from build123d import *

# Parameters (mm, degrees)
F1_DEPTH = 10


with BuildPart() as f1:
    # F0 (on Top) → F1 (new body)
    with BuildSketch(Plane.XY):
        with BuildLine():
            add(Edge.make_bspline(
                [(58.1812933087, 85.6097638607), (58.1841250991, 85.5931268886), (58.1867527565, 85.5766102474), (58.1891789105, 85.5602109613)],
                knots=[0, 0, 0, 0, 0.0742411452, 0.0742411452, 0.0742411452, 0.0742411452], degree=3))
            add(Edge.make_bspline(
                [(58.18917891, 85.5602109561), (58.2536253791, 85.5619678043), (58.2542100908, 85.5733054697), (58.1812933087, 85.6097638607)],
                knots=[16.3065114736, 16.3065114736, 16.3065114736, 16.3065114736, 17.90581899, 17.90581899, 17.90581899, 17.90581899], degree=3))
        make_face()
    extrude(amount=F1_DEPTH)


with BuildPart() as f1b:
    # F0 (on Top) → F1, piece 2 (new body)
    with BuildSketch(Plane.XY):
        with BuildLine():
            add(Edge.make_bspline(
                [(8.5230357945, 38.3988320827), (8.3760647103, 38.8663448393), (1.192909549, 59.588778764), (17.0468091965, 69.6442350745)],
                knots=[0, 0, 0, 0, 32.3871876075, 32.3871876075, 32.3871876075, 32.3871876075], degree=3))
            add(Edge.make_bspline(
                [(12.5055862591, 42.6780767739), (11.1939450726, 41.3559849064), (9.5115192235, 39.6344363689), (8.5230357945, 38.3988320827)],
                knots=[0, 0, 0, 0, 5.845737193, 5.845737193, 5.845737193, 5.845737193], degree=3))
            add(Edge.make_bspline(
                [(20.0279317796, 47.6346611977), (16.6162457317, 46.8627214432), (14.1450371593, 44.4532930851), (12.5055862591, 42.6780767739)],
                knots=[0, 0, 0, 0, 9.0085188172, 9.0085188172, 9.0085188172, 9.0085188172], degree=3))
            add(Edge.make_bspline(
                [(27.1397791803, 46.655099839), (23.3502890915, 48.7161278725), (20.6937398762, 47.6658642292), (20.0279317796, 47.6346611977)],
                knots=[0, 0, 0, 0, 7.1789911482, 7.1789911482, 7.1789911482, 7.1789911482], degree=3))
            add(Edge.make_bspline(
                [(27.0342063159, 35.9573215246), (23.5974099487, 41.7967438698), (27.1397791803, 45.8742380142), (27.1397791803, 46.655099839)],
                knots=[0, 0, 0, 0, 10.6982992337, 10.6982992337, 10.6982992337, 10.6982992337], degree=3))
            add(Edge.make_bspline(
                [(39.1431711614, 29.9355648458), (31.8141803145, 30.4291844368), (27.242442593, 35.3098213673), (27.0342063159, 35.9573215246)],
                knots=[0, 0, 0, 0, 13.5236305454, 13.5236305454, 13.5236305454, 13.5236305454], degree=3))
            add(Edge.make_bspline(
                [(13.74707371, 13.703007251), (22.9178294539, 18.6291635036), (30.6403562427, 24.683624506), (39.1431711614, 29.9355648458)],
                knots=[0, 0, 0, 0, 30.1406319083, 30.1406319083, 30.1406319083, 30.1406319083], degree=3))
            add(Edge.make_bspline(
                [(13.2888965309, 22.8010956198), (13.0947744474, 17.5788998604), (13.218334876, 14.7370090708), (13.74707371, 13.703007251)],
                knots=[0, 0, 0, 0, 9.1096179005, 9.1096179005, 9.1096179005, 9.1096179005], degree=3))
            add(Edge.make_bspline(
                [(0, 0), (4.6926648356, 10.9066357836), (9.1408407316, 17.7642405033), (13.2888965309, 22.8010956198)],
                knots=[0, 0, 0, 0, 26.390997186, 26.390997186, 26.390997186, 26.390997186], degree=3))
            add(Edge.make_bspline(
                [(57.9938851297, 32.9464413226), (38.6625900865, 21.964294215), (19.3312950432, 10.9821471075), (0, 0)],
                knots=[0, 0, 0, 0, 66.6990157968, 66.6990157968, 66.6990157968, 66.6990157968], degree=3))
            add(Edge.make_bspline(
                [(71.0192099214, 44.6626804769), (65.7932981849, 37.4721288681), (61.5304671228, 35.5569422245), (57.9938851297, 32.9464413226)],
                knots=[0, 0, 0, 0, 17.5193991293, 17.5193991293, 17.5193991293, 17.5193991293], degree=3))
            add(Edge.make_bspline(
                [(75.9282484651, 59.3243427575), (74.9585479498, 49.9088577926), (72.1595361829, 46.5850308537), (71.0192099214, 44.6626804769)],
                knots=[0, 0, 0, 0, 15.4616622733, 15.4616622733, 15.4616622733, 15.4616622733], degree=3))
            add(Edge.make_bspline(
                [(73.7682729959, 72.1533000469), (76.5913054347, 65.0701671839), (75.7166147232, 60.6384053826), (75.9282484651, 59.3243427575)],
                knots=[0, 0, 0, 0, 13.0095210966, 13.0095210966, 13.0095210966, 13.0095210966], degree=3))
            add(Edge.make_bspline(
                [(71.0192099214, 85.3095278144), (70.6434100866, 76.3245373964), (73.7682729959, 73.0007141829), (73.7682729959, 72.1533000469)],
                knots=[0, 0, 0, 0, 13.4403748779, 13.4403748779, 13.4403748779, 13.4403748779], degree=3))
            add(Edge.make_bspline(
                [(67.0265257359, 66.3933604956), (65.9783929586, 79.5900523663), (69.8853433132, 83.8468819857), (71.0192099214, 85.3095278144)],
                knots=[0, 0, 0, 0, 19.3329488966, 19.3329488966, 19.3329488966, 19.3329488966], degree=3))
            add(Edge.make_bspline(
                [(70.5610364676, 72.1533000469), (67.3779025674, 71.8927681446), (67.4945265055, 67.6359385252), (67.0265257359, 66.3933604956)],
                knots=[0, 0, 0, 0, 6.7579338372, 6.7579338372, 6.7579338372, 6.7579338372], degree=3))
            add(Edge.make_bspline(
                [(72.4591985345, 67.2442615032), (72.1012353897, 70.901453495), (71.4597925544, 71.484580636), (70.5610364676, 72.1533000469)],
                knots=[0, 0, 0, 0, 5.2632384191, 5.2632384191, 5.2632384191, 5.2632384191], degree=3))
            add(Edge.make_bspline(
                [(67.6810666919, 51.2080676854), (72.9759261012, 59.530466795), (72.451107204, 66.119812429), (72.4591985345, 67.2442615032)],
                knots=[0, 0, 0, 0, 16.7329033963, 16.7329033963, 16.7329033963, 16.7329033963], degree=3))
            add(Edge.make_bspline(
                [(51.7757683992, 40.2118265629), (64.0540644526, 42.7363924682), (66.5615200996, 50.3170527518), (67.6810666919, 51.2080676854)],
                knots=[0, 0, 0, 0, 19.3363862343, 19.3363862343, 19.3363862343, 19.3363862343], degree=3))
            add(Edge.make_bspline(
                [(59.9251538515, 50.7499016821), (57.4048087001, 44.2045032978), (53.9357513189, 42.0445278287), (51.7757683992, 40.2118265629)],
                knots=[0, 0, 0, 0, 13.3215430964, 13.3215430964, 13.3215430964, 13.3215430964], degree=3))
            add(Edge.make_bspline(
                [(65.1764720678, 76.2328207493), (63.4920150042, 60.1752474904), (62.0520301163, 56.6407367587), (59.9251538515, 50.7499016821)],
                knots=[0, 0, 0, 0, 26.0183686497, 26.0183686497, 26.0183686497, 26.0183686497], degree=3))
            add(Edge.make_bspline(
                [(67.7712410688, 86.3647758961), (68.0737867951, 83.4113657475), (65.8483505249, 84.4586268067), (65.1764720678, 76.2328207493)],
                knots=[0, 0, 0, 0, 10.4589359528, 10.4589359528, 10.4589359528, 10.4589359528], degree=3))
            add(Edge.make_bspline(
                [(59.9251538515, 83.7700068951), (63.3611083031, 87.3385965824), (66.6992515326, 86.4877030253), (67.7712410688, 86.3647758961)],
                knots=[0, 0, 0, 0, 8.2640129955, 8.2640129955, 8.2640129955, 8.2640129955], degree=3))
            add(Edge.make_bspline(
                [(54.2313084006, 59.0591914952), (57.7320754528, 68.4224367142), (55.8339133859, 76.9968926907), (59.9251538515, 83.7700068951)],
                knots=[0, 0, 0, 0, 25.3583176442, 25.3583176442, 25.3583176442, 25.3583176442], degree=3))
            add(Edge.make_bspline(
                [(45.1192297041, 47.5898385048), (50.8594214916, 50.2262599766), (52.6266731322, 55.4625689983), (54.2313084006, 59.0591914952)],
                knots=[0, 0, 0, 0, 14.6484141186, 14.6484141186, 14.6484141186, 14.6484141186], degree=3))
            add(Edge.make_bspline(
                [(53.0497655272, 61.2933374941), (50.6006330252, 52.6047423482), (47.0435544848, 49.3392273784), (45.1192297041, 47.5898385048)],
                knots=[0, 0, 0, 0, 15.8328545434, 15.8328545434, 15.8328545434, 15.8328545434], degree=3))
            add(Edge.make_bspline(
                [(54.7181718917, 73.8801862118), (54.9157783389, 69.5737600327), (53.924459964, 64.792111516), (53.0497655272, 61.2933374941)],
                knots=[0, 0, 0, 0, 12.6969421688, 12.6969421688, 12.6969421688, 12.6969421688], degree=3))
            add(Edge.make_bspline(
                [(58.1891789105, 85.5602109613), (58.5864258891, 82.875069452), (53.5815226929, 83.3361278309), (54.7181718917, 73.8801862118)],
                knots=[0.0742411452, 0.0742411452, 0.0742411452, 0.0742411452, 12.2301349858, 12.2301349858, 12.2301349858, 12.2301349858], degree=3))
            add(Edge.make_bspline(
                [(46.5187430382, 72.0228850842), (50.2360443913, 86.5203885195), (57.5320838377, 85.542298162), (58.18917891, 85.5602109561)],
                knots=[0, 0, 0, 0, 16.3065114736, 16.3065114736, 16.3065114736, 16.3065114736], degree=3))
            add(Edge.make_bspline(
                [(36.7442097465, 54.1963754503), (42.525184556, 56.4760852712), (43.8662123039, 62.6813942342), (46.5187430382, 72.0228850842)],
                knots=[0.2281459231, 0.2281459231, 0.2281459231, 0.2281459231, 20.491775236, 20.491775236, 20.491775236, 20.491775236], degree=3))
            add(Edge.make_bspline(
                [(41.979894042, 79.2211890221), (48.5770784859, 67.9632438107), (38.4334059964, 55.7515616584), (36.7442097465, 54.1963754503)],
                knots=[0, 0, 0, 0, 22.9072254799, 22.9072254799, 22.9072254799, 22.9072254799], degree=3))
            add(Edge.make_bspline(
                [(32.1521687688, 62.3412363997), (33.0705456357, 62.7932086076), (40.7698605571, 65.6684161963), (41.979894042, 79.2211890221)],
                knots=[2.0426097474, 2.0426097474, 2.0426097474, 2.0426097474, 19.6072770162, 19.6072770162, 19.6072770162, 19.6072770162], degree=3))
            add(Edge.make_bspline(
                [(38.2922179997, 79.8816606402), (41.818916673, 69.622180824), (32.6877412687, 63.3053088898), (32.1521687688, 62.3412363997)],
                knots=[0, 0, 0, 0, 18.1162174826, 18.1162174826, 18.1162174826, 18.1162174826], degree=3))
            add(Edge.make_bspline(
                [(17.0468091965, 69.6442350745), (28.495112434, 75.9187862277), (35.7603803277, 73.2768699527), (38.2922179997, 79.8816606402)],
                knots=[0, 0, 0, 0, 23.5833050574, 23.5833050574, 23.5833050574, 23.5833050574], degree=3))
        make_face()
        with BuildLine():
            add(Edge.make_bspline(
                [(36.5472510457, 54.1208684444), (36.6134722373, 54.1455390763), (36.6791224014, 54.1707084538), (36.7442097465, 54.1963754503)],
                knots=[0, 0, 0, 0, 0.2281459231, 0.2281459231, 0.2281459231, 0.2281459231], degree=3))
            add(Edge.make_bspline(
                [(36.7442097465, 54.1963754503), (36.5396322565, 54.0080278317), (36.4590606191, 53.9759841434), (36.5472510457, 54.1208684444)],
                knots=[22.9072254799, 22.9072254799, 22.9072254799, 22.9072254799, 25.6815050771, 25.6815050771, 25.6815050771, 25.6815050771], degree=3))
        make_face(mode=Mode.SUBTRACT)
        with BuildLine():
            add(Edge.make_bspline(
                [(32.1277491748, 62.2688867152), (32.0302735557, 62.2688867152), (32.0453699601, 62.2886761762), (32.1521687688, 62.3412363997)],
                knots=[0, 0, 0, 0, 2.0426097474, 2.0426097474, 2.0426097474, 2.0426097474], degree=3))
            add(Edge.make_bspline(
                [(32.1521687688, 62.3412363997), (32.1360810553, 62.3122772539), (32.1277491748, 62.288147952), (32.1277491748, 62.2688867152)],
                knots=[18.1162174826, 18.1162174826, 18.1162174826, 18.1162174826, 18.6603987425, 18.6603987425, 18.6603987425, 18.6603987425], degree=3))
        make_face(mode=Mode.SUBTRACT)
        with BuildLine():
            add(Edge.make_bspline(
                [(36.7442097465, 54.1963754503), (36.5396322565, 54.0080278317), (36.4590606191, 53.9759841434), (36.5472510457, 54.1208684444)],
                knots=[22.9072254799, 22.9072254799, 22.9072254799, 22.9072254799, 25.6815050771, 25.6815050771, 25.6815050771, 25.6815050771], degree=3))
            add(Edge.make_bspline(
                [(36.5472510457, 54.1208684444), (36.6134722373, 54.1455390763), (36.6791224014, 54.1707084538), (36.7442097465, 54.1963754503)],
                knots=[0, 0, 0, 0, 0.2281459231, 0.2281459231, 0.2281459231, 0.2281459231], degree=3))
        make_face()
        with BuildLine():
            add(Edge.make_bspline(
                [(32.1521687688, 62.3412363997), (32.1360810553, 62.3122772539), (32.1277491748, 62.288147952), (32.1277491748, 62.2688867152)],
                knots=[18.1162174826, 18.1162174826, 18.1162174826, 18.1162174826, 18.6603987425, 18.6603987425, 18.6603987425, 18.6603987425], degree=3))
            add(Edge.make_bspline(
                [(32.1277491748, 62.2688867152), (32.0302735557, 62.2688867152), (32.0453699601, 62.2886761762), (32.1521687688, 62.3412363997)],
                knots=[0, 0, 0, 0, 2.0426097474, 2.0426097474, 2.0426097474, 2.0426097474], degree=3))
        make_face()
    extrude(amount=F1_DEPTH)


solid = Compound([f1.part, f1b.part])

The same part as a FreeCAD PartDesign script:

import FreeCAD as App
import Part
import Sketcher
from FreeCAD import Vector

doc = App.newDocument("Part")
body = doc.addObject("PartDesign::Body", "Body")

# Sketch on XY plane
sketch1 = doc.addObject("Sketcher::SketchObject", "Sketch")
body.addObject(sketch1)
sketch1.AttachmentSupport = (doc.XY_Plane, [""])
sketch1.MapMode = "FlatFace"
sketch1.addGeometry([
    Part.BSplineCurve([Vector(58.181293, 85.609764, 0), Vector(58.184125, 85.593127, 0), Vector(58.186753, 85.57661, 0), Vector(58.189179, 85.560211, 0)], [4, 4], [0, 0.074241145], False, 3, [1, 1, 1, 1], False),
    Part.BSplineCurve([Vector(58.189179, 85.560211, 0), Vector(58.253625, 85.561968, 0), Vector(58.25421, 85.573305, 0), Vector(58.181293, 85.609764, 0)], [4, 4], [16.306511474, 17.90581899], False, 3, [1, 1, 1, 1], False),
], False)
sketch1.addConstraint([
    Sketcher.Constraint("Block", 0),
    Sketcher.Constraint("Block", 1),
])
pad1 = doc.addObject("PartDesign::Pad", "Pad")
body.addObject(pad1)
pad1.Profile = sketch1
pad1.Length = 10
body2 = doc.addObject("PartDesign::Body", "Body001")

# Sketch on XY plane
sketch2 = doc.addObject("Sketcher::SketchObject", "Sketch001")
body2.addObject(sketch2)
sketch2.AttachmentSupport = (doc.getObject("XY_Plane001"), [""])
sketch2.MapMode = "FlatFace"
sketch2.addGeometry([
    Part.BSplineCurve([Vector(38.292218, 79.881661, 0), Vector(41.818917, 69.622181, 0), Vector(32.687741, 63.305309, 0), Vector(32.152169, 62.341236, 0)], [4, 4], [0, 18.116217483], False, 3, [1, 1, 1, 1], False),  # 0
    Part.BSplineCurve([Vector(17.046809, 69.644235, 0), Vector(28.495112, 75.918786, 0), Vector(35.76038, 73.27687, 0), Vector(38.292218, 79.881661, 0)], [4, 4], [0, 23.583305057], False, 3, [1, 1, 1, 1], False),  # 1
    Part.BSplineCurve([Vector(8.523036, 38.398832, 0), Vector(8.376065, 38.866345, 0), Vector(1.19291, 59.588779, 0), Vector(17.046809, 69.644235, 0)], [4, 4], [0, 32.387187608], False, 3, [1, 1, 1, 1], False),  # 2
    Part.BSplineCurve([Vector(12.505586, 42.678077, 0), Vector(11.193945, 41.355985, 0), Vector(9.511519, 39.634436, 0), Vector(8.523036, 38.398832, 0)], [4, 4], [0, 5.845737193], False, 3, [1, 1, 1, 1], False),  # 3
    Part.BSplineCurve([Vector(20.027932, 47.634661, 0), Vector(16.616246, 46.862721, 0), Vector(14.145037, 44.453293, 0), Vector(12.505586, 42.678077, 0)], [4, 4], [0, 9.008518817], False, 3, [1, 1, 1, 1], False),  # 4
    Part.BSplineCurve([Vector(27.139779, 46.6551, 0), Vector(23.350289, 48.716128, 0), Vector(20.69374, 47.665864, 0), Vector(20.027932, 47.634661, 0)], [4, 4], [0, 7.178991148], False, 3, [1, 1, 1, 1], False),  # 5
    Part.BSplineCurve([Vector(27.034206, 35.957322, 0), Vector(23.59741, 41.796744, 0), Vector(27.139779, 45.874238, 0), Vector(27.139779, 46.6551, 0)], [4, 4], [0, 10.698299234], False, 3, [1, 1, 1, 1], False),  # 6
    Part.BSplineCurve([Vector(39.143171, 29.935565, 0), Vector(31.81418, 30.429184, 0), Vector(27.242443, 35.309821, 0), Vector(27.034206, 35.957322, 0)], [4, 4], [0, 13.523630545], False, 3, [1, 1, 1, 1], False),  # 7
    Part.BSplineCurve([Vector(13.747074, 13.703007, 0), Vector(22.917829, 18.629164, 0), Vector(30.640356, 24.683625, 0), Vector(39.143171, 29.935565, 0)], [4, 4], [0, 30.140631908], False, 3, [1, 1, 1, 1], False),  # 8
    Part.BSplineCurve([Vector(13.288897, 22.801096, 0), Vector(13.094774, 17.5789, 0), Vector(13.218335, 14.737009, 0), Vector(13.747074, 13.703007, 0)], [4, 4], [0, 9.1096179], False, 3, [1, 1, 1, 1], False),  # 9
    Part.BSplineCurve([Vector(0, 0, 0), Vector(4.692665, 10.906636, 0), Vector(9.140841, 17.764241, 0), Vector(13.288897, 22.801096, 0)], [4, 4], [0, 26.390997186], False, 3, [1, 1, 1, 1], False),  # 10
    Part.BSplineCurve([Vector(57.993885, 32.946441, 0), Vector(38.66259, 21.964294, 0), Vector(19.331295, 10.982147, 0), Vector(0, 0, 0)], [4, 4], [0, 66.699015797], False, 3, [1, 1, 1, 1], False),  # 11
    Part.BSplineCurve([Vector(71.01921, 44.66268, 0), Vector(65.793298, 37.472129, 0), Vector(61.530467, 35.556942, 0), Vector(57.993885, 32.946441, 0)], [4, 4], [0, 17.519399129], False, 3, [1, 1, 1, 1], False),  # 12
    Part.BSplineCurve([Vector(75.928248, 59.324343, 0), Vector(74.958548, 49.908858, 0), Vector(72.159536, 46.585031, 0), Vector(71.01921, 44.66268, 0)], [4, 4], [0, 15.461662273], False, 3, [1, 1, 1, 1], False),  # 13
    Part.BSplineCurve([Vector(73.768273, 72.1533, 0), Vector(76.591305, 65.070167, 0), Vector(75.716615, 60.638405, 0), Vector(75.928248, 59.324343, 0)], [4, 4], [0, 13.009521097], False, 3, [1, 1, 1, 1], False),  # 14
    Part.BSplineCurve([Vector(71.01921, 85.309528, 0), Vector(70.64341, 76.324537, 0), Vector(73.768273, 73.000714, 0), Vector(73.768273, 72.1533, 0)], [4, 4], [0, 13.440374878], False, 3, [1, 1, 1, 1], False),  # 15
    Part.BSplineCurve([Vector(67.026526, 66.39336, 0), Vector(65.978393, 79.590052, 0), Vector(69.885343, 83.846882, 0), Vector(71.01921, 85.309528, 0)], [4, 4], [0, 19.332948897], False, 3, [1, 1, 1, 1], False),  # 16
    Part.BSplineCurve([Vector(70.561036, 72.1533, 0), Vector(67.377903, 71.892768, 0), Vector(67.494527, 67.635939, 0), Vector(67.026526, 66.39336, 0)], [4, 4], [0, 6.757933837], False, 3, [1, 1, 1, 1], False),  # 17
    Part.BSplineCurve([Vector(72.459199, 67.244262, 0), Vector(72.101235, 70.901453, 0), Vector(71.459793, 71.484581, 0), Vector(70.561036, 72.1533, 0)], [4, 4], [0, 5.263238419], False, 3, [1, 1, 1, 1], False),  # 18
    Part.BSplineCurve([Vector(67.681067, 51.208068, 0), Vector(72.975926, 59.530467, 0), Vector(72.451107, 66.119812, 0), Vector(72.459199, 67.244262, 0)], [4, 4], [0, 16.732903396], False, 3, [1, 1, 1, 1], False),  # 19
    Part.BSplineCurve([Vector(51.775768, 40.211827, 0), Vector(64.054064, 42.736392, 0), Vector(66.56152, 50.317053, 0), Vector(67.681067, 51.208068, 0)], [4, 4], [0, 19.336386234], False, 3, [1, 1, 1, 1], False),  # 20
    Part.BSplineCurve([Vector(59.925154, 50.749902, 0), Vector(57.404809, 44.204503, 0), Vector(53.935751, 42.044528, 0), Vector(51.775768, 40.211827, 0)], [4, 4], [0, 13.321543096], False, 3, [1, 1, 1, 1], False),  # 21
    Part.BSplineCurve([Vector(65.176472, 76.232821, 0), Vector(63.492015, 60.175247, 0), Vector(62.05203, 56.640737, 0), Vector(59.925154, 50.749902, 0)], [4, 4], [0, 26.01836865], False, 3, [1, 1, 1, 1], False),  # 22
    Part.BSplineCurve([Vector(67.771241, 86.364776, 0), Vector(68.073787, 83.411366, 0), Vector(65.848351, 84.458627, 0), Vector(65.176472, 76.232821, 0)], [4, 4], [0, 10.458935953], False, 3, [1, 1, 1, 1], False),  # 23
    Part.BSplineCurve([Vector(59.925154, 83.770007, 0), Vector(63.361108, 87.338597, 0), Vector(66.699252, 86.487703, 0), Vector(67.771241, 86.364776, 0)], [4, 4], [0, 8.264012995], False, 3, [1, 1, 1, 1], False),  # 24
    Part.BSplineCurve([Vector(54.231308, 59.059191, 0), Vector(57.732075, 68.422437, 0), Vector(55.833913, 76.996893, 0), Vector(59.925154, 83.770007, 0)], [4, 4], [0, 25.358317644], False, 3, [1, 1, 1, 1], False),  # 25
    Part.BSplineCurve([Vector(45.11923, 47.589839, 0), Vector(50.859421, 50.22626, 0), Vector(52.626673, 55.462569, 0), Vector(54.231308, 59.059191, 0)], [4, 4], [0, 14.648414119], False, 3, [1, 1, 1, 1], False),  # 26
    Part.BSplineCurve([Vector(53.049766, 61.293337, 0), Vector(50.600633, 52.604742, 0), Vector(47.043554, 49.339227, 0), Vector(45.11923, 47.589839, 0)], [4, 4], [0, 15.832854543], False, 3, [1, 1, 1, 1], False),  # 27
    Part.BSplineCurve([Vector(54.718172, 73.880186, 0), Vector(54.915778, 69.57376, 0), Vector(53.92446, 64.792112, 0), Vector(53.049766, 61.293337, 0)], [4, 4], [0, 12.696942169], False, 3, [1, 1, 1, 1], False),  # 28
    Part.BSplineCurve([Vector(58.189179, 85.560211, 0), Vector(58.586426, 82.875069, 0), Vector(53.581523, 83.336128, 0), Vector(54.718172, 73.880186, 0)], [4, 4], [0.074241145, 12.230134986], False, 3, [1, 1, 1, 1], False),  # 29
    Part.BSplineCurve([Vector(46.518743, 72.022885, 0), Vector(50.236044, 86.520389, 0), Vector(57.532084, 85.542298, 0), Vector(58.189179, 85.560211, 0)], [4, 4], [0, 16.306511474], False, 3, [1, 1, 1, 1], False),  # 30
    Part.BSplineCurve([Vector(36.74421, 54.196375, 0), Vector(42.525185, 56.476085, 0), Vector(43.866212, 62.681394, 0), Vector(46.518743, 72.022885, 0)], [4, 4], [0.228145923, 20.491775236], False, 3, [1, 1, 1, 1], False),  # 31
    Part.BSplineCurve([Vector(41.979894, 79.221189, 0), Vector(48.577078, 67.963244, 0), Vector(38.433406, 55.751562, 0), Vector(36.74421, 54.196375, 0)], [4, 4], [0, 22.90722548], False, 3, [1, 1, 1, 1], False),  # 32
    Part.BSplineCurve([Vector(32.152169, 62.341236, 0), Vector(33.070546, 62.793209, 0), Vector(40.769861, 65.668416, 0), Vector(41.979894, 79.221189, 0)], [4, 4], [2.042609747, 19.607277016], False, 3, [1, 1, 1, 1], False),  # 33
], False)
sketch2.addConstraint([
    Sketcher.Constraint("Block", 0),
    Sketcher.Constraint("Block", 1),
    Sketcher.Constraint("Block", 2),
    Sketcher.Constraint("Block", 3),
    Sketcher.Constraint("Block", 4),
    Sketcher.Constraint("Block", 5),
    Sketcher.Constraint("Block", 6),
    Sketcher.Constraint("Block", 7),
    Sketcher.Constraint("Block", 8),
    Sketcher.Constraint("Block", 9),
    Sketcher.Constraint("Block", 10),
    Sketcher.Constraint("Block", 11),
    Sketcher.Constraint("Block", 12),
    Sketcher.Constraint("Block", 13),
    Sketcher.Constraint("Block", 14),
    Sketcher.Constraint("Block", 15),
    Sketcher.Constraint("Block", 16),
    Sketcher.Constraint("Block", 17),
    Sketcher.Constraint("Block", 18),
    Sketcher.Constraint("Block", 19),
    Sketcher.Constraint("Block", 20),
    Sketcher.Constraint("Block", 21),
    Sketcher.Constraint("Block", 22),
    Sketcher.Constraint("Block", 23),
    Sketcher.Constraint("Block", 24),
    Sketcher.Constraint("Block", 25),
    Sketcher.Constraint("Block", 26),
    Sketcher.Constraint("Block", 27),
    Sketcher.Constraint("Block", 28),
    Sketcher.Constraint("Block", 29),
    Sketcher.Constraint("Block", 30),
    Sketcher.Constraint("Block", 31),
    Sketcher.Constraint("Block", 32),
    Sketcher.Constraint("Block", 33),
])
pad2 = doc.addObject("PartDesign::Pad", "Pad001")
body2.addObject(pad2)
pad2.Profile = sketch2
pad2.Length = 10

doc.recompute()
